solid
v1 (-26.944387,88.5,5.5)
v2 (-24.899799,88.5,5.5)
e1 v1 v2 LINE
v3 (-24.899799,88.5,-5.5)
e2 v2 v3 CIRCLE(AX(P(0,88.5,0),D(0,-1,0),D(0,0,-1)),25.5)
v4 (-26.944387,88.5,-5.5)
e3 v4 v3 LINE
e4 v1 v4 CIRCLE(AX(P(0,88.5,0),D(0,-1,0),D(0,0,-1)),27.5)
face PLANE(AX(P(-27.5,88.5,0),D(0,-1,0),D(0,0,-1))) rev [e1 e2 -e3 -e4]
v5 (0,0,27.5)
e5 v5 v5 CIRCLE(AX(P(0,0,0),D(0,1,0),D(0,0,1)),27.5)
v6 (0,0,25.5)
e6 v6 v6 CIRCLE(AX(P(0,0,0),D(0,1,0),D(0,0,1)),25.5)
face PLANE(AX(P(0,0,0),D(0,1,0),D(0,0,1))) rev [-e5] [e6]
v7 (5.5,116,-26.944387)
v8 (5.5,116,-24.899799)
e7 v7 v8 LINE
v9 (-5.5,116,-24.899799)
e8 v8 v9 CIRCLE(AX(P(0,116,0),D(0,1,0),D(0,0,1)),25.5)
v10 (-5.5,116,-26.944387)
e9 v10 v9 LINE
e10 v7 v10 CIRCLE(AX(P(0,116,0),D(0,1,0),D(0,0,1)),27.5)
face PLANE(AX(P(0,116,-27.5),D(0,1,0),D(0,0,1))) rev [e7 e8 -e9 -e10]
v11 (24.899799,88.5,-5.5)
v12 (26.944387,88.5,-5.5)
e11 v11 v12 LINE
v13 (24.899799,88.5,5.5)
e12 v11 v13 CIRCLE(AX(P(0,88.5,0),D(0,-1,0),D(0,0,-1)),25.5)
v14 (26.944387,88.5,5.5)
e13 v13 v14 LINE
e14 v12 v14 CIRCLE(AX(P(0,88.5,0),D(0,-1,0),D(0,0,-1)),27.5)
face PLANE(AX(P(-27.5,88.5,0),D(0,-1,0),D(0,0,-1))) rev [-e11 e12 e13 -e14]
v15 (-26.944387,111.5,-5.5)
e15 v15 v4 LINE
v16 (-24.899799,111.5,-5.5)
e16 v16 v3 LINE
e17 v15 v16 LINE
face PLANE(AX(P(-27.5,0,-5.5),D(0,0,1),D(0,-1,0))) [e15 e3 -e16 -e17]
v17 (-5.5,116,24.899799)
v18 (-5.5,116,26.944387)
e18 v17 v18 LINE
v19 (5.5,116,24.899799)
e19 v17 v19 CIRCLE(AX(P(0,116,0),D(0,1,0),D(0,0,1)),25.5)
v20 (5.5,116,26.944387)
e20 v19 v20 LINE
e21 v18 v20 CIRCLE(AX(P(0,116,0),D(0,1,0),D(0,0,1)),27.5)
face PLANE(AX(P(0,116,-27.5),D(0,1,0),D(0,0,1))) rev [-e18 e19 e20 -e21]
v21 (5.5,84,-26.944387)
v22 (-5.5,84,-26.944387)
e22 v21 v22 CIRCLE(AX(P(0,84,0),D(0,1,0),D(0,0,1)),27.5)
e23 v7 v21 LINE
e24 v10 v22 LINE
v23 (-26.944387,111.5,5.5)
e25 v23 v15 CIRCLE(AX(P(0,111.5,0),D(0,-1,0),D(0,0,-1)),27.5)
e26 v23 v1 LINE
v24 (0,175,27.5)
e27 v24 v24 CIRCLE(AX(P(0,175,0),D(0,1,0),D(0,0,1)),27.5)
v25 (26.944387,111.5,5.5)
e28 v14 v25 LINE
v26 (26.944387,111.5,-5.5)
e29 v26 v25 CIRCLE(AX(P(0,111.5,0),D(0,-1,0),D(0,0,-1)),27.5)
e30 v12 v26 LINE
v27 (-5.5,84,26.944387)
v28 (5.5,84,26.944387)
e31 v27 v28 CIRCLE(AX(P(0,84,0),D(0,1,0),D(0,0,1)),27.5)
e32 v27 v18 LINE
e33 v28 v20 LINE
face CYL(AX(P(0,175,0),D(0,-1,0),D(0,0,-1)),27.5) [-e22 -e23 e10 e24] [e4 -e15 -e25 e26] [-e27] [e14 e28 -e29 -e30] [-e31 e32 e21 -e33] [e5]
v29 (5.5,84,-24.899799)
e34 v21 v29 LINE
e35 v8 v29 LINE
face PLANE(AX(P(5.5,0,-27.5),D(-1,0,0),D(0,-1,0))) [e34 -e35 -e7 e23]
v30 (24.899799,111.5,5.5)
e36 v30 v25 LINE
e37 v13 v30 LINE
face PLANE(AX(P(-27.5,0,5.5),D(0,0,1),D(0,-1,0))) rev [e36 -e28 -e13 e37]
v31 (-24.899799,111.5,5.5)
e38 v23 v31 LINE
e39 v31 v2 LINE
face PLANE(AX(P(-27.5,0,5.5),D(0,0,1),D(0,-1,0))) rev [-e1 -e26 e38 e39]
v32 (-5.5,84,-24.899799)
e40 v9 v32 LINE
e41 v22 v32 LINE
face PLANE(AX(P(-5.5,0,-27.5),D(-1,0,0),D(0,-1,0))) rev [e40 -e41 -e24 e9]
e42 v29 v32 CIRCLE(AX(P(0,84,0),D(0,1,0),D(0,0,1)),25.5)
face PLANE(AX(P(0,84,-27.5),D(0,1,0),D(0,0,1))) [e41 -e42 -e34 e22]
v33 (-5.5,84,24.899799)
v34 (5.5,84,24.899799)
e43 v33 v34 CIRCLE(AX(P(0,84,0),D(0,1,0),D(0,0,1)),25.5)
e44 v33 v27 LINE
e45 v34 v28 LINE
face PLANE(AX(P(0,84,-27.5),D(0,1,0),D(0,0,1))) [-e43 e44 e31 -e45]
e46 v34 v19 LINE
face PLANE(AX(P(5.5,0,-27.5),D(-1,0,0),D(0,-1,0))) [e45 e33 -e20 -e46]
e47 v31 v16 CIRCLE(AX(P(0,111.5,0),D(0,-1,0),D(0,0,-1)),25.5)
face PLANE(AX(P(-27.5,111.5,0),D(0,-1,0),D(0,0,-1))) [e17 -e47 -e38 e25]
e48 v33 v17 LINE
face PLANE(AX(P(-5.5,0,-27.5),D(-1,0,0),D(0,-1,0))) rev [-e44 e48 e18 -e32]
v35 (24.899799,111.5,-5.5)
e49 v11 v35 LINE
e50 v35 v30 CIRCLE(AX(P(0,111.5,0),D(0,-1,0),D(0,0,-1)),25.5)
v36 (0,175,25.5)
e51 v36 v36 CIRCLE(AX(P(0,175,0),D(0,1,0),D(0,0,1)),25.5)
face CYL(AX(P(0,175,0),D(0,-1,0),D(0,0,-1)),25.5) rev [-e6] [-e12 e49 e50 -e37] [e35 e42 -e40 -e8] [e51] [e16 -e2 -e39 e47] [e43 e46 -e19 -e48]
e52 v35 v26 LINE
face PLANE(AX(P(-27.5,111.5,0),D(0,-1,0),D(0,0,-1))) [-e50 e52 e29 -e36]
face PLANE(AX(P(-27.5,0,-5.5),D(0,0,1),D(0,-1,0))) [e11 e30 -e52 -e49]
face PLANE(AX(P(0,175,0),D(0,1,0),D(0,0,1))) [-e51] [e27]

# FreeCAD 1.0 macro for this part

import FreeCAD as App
import Part
import Sketcher

V = App.Vector


def add_polygon(sketch, points):
    """Adds a closed chain of lines whose ends are joined by coincident constraints."""
    first, n = sketch.GeometryCount, len(points)
    for a, b in zip(points, points[1:] + points[:1]):
        sketch.addGeometry(Part.LineSegment(App.Vector(*a, 0), App.Vector(*b, 0)), False)
    for i in range(n):
        sketch.addConstraint(Sketcher.Constraint("Coincident", first + i, 2, first + (i + 1) % n, 1))

doc = App.newDocument("Part")
body = doc.addObject("PartDesign::Body", "Body")

sketch1 = body.newObject("Sketcher::SketchObject", "Sketch")
sketch1.AttachmentSupport = (doc.getObject("XZ_Plane"), [""])
sketch1.MapMode = "FlatFace"
sketch1.addGeometry([
    Part.Circle(V(0, 0, 0), V(0, 0, 1), 28),
    Part.Circle(V(0, 0, 0), V(0, 0, 1), 26),
], False)
sketch1.addConstraint([
    Sketcher.Constraint("Coincident", 0, 3, -1, 1),
    Sketcher.Constraint("Coincident", 1, 3, -1, 1),
    Sketcher.Constraint("Diameter", 0, 55.0),
    Sketcher.Constraint("Diameter", 1, 51.0),
])
pad1 = body.newObject("PartDesign::Pad", "Pad")
pad1.Profile = sketch1
pad1.Length = 175
pad1.Reversed = True

sketch2 = body.newObject("Sketcher::SketchObject", "Sketch001")
sketch2.AttachmentSupport = (doc.getObject("YZ_Plane"), [""])
sketch2.MapMode = "FlatFace"
add_polygon(sketch2, [(112, 6), (88, 6), (88, -6), (112, -6)])
sketch2.addConstraint([
    Sketcher.Constraint("Horizontal", 0),
    Sketcher.Constraint("Vertical", 1),
    Sketcher.Constraint("Horizontal", 2),
    Sketcher.Constraint("Vertical", 3),
    Sketcher.Constraint("DistanceX", 0, 2, 0, 1, 23.0),
    Sketcher.Constraint("DistanceY", 1, 2, 1, 1, 11.0),
    Sketcher.Constraint("DistanceX", -1, 1, 0, 2, 88.5),
    Sketcher.Constraint("DistanceY", -1, 1, 0, 2, 5.5),
])
pocket1 = body.newObject("PartDesign::Pocket", "Pocket")
pocket1.Profile = sketch2
pocket1.Type = "ThroughAll"
pocket1.Midplane = True

sketch3 = body.newObject("Sketcher::SketchObject", "Sketch002")
sketch3.AttachmentSupport = (doc.getObject("XY_Plane"), [""])
sketch3.MapMode = "FlatFace"
add_polygon(sketch3, [(-6, 116), (-6, 84), (6, 84), (6, 116)])
sketch3.addConstraint([
    Sketcher.Constraint("Vertical", 0),
    Sketcher.Constraint("Horizontal", 1),
    Sketcher.Constraint("Vertical", 2),
    Sketcher.Constraint("Horizontal", 3),
    Sketcher.Constraint("DistanceX", 1, 1, 1, 2, 11.0),
    Sketcher.Constraint("DistanceY", 0, 2, 0, 1, 32.0),
    Sketcher.Constraint("DistanceY", -1, 1, 0, 2, 84.0),
    Sketcher.Constraint("DistanceX", 0, 2, -1, 1, 5.5),
])
pocket2 = body.newObject("PartDesign::Pocket", "Pocket001")
pocket2.Profile = sketch3
pocket2.Type = "ThroughAll"
pocket2.Midplane = True

doc.recompute()
